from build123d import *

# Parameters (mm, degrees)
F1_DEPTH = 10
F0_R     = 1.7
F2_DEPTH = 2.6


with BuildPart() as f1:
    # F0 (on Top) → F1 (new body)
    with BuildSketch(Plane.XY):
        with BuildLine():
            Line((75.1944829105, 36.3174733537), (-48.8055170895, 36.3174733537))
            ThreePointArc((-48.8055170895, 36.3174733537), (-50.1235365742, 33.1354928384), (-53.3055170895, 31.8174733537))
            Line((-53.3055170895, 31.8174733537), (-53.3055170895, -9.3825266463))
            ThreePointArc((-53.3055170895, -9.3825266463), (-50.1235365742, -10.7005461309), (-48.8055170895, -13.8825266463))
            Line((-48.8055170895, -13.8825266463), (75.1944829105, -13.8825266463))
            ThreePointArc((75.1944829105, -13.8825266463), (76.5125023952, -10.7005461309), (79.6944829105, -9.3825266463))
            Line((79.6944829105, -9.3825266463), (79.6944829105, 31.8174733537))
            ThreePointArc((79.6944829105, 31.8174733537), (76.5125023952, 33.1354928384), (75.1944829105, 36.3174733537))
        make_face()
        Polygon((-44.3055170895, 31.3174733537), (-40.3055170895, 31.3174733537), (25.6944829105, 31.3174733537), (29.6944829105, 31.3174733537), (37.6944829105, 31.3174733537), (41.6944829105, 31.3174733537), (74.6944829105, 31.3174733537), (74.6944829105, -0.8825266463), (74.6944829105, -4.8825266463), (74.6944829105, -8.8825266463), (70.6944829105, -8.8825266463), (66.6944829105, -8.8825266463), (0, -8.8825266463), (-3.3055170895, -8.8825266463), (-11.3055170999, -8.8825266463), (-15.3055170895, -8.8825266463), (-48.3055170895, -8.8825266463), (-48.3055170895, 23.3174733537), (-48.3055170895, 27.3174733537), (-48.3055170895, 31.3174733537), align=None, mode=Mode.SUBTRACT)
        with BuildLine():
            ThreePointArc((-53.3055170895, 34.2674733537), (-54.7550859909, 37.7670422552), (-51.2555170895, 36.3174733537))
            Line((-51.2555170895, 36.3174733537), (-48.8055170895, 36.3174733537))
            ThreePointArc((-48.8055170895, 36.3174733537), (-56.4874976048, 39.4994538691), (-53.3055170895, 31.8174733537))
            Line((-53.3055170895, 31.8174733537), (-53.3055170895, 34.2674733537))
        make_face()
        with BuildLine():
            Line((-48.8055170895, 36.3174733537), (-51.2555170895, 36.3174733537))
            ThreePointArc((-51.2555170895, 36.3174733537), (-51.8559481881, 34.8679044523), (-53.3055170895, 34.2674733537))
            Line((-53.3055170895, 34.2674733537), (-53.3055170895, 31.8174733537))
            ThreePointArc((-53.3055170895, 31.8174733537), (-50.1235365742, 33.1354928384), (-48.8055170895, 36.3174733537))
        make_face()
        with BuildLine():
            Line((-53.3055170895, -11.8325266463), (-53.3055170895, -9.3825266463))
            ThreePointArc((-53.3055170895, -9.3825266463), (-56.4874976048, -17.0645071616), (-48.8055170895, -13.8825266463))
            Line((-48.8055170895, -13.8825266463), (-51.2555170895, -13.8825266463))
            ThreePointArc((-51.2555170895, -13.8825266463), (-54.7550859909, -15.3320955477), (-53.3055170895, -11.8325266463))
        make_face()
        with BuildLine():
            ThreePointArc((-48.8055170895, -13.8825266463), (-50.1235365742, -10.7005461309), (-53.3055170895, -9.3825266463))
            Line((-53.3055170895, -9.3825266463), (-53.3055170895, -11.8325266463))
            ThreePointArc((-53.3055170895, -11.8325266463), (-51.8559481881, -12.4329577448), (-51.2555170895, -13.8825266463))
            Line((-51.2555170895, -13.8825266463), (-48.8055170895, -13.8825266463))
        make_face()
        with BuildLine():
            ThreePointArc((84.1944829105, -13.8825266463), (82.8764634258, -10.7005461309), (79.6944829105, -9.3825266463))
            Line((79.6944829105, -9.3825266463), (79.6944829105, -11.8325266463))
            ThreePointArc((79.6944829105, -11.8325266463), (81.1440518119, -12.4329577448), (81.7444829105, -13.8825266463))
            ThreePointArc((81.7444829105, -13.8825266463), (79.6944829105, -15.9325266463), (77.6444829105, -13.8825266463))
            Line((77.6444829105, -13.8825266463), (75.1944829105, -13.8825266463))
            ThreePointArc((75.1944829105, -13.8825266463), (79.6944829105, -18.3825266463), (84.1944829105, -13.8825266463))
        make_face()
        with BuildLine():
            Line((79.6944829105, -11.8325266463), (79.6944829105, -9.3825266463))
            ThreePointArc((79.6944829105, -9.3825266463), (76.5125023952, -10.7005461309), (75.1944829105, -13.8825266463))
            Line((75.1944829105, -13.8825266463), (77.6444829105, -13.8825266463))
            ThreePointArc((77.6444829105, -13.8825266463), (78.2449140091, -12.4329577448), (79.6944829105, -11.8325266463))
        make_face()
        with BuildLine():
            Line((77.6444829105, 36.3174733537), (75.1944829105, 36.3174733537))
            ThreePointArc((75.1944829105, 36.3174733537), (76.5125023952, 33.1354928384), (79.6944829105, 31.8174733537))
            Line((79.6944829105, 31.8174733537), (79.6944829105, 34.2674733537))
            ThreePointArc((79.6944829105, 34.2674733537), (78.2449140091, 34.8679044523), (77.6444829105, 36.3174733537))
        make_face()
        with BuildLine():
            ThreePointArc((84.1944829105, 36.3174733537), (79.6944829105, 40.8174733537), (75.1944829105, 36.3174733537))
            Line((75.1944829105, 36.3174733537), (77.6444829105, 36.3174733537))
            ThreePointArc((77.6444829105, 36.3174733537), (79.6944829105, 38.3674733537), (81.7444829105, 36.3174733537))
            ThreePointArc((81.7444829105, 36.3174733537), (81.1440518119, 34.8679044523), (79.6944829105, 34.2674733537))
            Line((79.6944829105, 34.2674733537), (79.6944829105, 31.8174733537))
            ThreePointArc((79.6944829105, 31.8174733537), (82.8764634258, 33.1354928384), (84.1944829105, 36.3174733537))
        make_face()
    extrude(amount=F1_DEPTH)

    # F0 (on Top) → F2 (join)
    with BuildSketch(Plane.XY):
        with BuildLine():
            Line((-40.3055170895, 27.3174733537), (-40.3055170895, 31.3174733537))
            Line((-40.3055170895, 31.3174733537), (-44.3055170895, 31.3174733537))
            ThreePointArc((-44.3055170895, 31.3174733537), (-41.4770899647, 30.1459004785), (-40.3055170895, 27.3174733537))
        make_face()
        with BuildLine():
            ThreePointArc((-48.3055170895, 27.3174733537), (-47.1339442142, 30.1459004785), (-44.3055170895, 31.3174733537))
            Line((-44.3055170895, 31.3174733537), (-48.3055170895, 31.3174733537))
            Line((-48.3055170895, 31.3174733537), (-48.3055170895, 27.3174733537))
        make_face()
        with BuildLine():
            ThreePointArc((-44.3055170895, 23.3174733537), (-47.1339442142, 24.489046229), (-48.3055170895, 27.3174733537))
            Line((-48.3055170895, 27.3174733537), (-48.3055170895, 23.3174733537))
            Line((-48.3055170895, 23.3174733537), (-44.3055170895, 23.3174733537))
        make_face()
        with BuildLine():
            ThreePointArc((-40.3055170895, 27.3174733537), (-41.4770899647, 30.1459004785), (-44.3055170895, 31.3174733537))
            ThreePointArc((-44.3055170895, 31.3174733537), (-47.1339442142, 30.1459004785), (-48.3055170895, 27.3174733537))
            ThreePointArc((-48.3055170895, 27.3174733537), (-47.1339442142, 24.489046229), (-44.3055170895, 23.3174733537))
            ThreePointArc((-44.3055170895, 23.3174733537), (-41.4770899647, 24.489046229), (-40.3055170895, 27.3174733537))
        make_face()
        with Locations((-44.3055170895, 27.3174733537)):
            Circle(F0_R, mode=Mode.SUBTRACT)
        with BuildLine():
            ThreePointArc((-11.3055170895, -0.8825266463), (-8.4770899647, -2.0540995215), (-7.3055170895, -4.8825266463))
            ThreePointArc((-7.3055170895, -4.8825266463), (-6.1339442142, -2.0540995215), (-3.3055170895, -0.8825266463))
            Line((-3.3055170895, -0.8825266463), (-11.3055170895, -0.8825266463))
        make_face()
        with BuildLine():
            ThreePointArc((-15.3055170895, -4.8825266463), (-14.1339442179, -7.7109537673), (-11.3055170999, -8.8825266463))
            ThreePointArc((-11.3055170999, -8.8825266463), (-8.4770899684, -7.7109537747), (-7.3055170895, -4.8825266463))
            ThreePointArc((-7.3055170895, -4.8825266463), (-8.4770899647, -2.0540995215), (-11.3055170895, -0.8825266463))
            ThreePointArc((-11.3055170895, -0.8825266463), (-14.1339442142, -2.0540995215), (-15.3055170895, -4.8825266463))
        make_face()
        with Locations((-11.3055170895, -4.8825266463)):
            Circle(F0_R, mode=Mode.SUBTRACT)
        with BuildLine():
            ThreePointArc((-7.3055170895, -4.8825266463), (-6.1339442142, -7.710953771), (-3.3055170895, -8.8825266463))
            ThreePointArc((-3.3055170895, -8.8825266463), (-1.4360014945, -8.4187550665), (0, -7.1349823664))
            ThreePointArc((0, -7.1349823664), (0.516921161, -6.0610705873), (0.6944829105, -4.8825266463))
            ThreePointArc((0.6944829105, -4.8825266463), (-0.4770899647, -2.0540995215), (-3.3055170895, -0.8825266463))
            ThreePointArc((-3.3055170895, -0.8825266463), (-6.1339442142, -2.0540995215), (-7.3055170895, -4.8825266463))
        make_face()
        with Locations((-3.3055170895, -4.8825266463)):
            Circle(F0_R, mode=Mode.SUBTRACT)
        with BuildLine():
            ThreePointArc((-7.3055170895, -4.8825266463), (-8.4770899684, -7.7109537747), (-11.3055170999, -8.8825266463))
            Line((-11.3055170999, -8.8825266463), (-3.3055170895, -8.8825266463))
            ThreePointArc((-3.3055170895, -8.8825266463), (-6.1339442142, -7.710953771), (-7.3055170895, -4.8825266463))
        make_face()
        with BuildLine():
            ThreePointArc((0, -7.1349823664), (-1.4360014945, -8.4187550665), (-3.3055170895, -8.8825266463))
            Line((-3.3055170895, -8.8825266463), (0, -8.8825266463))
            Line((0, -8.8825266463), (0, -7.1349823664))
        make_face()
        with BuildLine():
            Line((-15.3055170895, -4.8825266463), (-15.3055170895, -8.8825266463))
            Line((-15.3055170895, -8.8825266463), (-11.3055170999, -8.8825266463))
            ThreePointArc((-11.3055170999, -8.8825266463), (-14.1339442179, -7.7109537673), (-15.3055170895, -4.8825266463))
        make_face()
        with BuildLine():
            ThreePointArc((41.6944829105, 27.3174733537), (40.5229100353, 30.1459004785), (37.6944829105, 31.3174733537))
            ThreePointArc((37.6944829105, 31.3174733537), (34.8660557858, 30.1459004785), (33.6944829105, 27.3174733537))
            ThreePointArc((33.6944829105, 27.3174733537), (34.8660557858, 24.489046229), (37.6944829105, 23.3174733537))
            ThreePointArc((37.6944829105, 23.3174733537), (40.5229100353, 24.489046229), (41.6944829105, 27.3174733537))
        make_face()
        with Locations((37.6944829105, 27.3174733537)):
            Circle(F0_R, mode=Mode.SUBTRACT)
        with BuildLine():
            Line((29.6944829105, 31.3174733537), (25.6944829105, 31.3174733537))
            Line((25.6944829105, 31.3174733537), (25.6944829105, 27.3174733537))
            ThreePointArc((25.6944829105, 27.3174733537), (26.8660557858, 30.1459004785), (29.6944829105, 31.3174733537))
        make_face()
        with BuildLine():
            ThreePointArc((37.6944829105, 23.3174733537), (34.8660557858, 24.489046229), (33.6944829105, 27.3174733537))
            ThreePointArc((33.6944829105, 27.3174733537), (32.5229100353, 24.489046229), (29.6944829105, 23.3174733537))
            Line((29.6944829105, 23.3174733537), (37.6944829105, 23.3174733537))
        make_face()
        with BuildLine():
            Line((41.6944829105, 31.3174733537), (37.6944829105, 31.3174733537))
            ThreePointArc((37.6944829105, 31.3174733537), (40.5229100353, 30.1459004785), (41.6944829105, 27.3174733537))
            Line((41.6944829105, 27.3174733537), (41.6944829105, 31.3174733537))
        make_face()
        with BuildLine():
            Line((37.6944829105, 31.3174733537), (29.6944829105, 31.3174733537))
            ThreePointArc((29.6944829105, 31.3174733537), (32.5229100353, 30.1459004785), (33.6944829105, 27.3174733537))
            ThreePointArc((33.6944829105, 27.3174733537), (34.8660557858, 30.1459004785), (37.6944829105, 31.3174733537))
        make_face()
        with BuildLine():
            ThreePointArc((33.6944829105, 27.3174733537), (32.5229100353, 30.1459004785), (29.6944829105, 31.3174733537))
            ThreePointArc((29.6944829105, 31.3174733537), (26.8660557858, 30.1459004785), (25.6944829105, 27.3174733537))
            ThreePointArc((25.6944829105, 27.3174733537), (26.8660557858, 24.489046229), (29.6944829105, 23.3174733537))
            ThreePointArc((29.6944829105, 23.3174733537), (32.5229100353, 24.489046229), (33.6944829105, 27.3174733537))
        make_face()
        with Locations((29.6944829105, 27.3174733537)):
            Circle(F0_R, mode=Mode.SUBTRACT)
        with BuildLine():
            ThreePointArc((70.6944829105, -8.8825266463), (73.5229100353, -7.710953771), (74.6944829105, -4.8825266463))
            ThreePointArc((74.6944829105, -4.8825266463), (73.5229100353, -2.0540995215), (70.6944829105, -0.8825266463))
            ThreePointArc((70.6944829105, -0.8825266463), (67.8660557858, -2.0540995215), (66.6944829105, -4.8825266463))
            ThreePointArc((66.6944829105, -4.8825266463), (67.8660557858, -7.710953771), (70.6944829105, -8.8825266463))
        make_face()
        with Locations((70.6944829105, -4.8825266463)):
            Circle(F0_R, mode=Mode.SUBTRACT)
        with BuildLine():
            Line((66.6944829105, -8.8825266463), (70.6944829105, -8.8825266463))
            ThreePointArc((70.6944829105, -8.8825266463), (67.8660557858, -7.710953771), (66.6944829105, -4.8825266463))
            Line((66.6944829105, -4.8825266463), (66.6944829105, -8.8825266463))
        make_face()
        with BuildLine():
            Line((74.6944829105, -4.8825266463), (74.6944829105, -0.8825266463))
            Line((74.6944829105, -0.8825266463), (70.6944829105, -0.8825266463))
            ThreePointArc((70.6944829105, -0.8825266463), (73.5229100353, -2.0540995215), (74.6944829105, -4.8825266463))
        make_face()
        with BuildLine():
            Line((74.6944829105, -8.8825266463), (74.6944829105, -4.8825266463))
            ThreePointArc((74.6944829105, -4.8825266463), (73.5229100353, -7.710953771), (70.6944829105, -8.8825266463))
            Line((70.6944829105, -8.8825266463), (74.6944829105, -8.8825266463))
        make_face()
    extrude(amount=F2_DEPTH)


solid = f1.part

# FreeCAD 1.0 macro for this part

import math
import FreeCAD as App
import Part
import Sketcher

V = App.Vector
Q = App.Units.Quantity

doc = App.newDocument("Part")
body = doc.addObject("PartDesign::Body", "Body")

# Sketch on XY plane
sketch1 = body.newObject("Sketcher::SketchObject", "Sketch")
sketch1.AttachmentSupport = (doc.getObject("XY_Plane"), [""])
sketch1.MapMode = "FlatFace"
sketch1.addGeometry([
    Part.ArcOfCircle(Part.Circle(V(-53.305517, 36.317473, 0), V(0, 0, 1), 4.5), math.radians(0), math.radians(270)),  # 0
    Part.LineSegment(V(-53.305517, 31.817473, 0), V(-53.305517, -9.382527, 0)),  # 1
    Part.ArcOfCircle(Part.Circle(V(-53.305517, -13.882527, 0), V(0, 0, 1), 4.5), math.radians(90), math.radians(360)),  # 2
    Part.LineSegment(V(-48.805517, -13.882527, 0), V(75.194483, -13.882527, 0)),  # 3
    Part.ArcOfCircle(Part.Circle(V(79.694483, -13.882527, 0), V(0, 0, 1), 4.5), math.radians(180), math.radians(360)),  # 4
    Part.ArcOfCircle(Part.Circle(V(79.694483, -13.882527, 0), V(0, 0, 1), 4.5), math.radians(0), math.radians(90)),  # 5
    Part.LineSegment(V(79.694483, -9.382527, 0), V(79.694483, 31.817473, 0)),  # 6
    Part.ArcOfCircle(Part.Circle(V(79.694483, 36.317473, 0), V(0, 0, 1), 4.5), math.radians(-90), math.radians(0)),  # 7
    Part.ArcOfCircle(Part.Circle(V(79.694483, 36.317473, 0), V(0, 0, 1), 4.5), math.radians(0), math.radians(180)),  # 8
    Part.LineSegment(V(75.194483, 36.317473, 0), V(-48.805517, 36.317473, 0)),  # 9
    Part.ArcOfCircle(Part.Circle(V(79.694483, 36.317473, 0), V(0, 0, 1), 2.05), math.radians(180), math.radians(270)),  # 10
    Part.ArcOfCircle(Part.Circle(V(79.694483, 36.317473, 0), V(0, 0, 1), 2.05), math.radians(0), math.radians(180)),  # 11
    Part.ArcOfCircle(Part.Circle(V(79.694483, 36.317473, 0), V(0, 0, 1), 2.05), math.radians(-90), math.radians(0)),  # 12
    Part.LineSegment(V(-48.305517, 31.317473, 0), V(74.694483, 31.317473, 0)),  # 13
    Part.LineSegment(V(74.694483, 31.317473, 0), V(74.694483, -8.882527, 0)),  # 14
    Part.LineSegment(V(74.694483, -8.882527, 0), V(-48.305517, -8.882527, 0)),  # 15
    Part.LineSegment(V(-48.305517, -8.882527, 0), V(-48.305517, 31.317473, 0)),  # 16
    Part.ArcOfCircle(Part.Circle(V(-53.305517, 36.317473, 0), V(0, 0, 1), 2.05), math.radians(-90), math.radians(0)),  # 17
    Part.ArcOfCircle(Part.Circle(V(-53.305517, 36.317473, 0), V(0, 0, 1), 2.05), math.radians(0), math.radians(270)),  # 18
    Part.ArcOfCircle(Part.Circle(V(-53.305517, -13.882527, 0), V(0, 0, 1), 2.05), math.radians(0), math.radians(90)),  # 19
    Part.ArcOfCircle(Part.Circle(V(-53.305517, -13.882527, 0), V(0, 0, 1), 2.05), math.radians(90), math.radians(360)),  # 20
    Part.ArcOfCircle(Part.Circle(V(79.694483, -13.882527, 0), V(0, 0, 1), 2.05), math.radians(90), math.radians(180)),  # 21
    Part.ArcOfCircle(Part.Circle(V(79.694483, -13.882527, 0), V(0, 0, 1), 2.05), math.radians(0), math.radians(90)),  # 22
    Part.ArcOfCircle(Part.Circle(V(79.694483, -13.882527, 0), V(0, 0, 1), 2.05), math.radians(180), math.radians(360)),  # 23
], False)
sketch1.addConstraint([
    Sketcher.Constraint("Coincident", 0, 2, 1, 1),
    Sketcher.Constraint("Coincident", 1, 2, 2, 1),
    Sketcher.Constraint("Coincident", 2, 2, 3, 1),
    Sketcher.Constraint("Coincident", 3, 2, 4, 1),
    Sketcher.Constraint("Tangent", 4, 2, 5, 1),
    Sketcher.Constraint("Coincident", 5, 2, 6, 1),
    Sketcher.Constraint("Coincident", 6, 2, 7, 1),
    Sketcher.Constraint("Tangent", 7, 2, 8, 1),
    Sketcher.Constraint("Coincident", 8, 2, 9, 1),
    Sketcher.Constraint("Coincident", 9, 2, 0, 1),
    Sketcher.Constraint("Tangent", 10, 1, 11, 2),
    Sketcher.Constraint("Tangent", 11, 1, 12, 2),
    Sketcher.Constraint("Tangent", 12, 1, 10, 2),
    Sketcher.Constraint("Coincident", 13, 2, 14, 1),
    Sketcher.Constraint("Coincident", 14, 2, 15, 1),
    Sketcher.Constraint("Coincident", 15, 2, 16, 1),
    Sketcher.Constraint("Coincident", 16, 2, 13, 1),
    Sketcher.Constraint("Tangent", 17, 1, 18, 2),
    Sketcher.Constraint("Coincident", 18, 1, 17, 2),
    Sketcher.Constraint("Tangent", 19, 1, 20, 2),
    Sketcher.Constraint("Coincident", 20, 1, 19, 2),
    Sketcher.Constraint("Tangent", 21, 1, 22, 2),
    Sketcher.Constraint("Tangent", 22, 1, 23, 2),
    Sketcher.Constraint("Tangent", 23, 1, 21, 2),
    Sketcher.Constraint("Vertical", 1),
    Sketcher.Constraint("Horizontal", 3),
    Sketcher.Constraint("Vertical", 6),
    Sketcher.Constraint("Horizontal", 9),
    Sketcher.Constraint("Horizontal", 13),
    Sketcher.Constraint("Vertical", 14),
    Sketcher.Constraint("Horizontal", 15),
    Sketcher.Constraint("Vertical", 16),
    Sketcher.Constraint("Coincident", 10, 3, 7, 3),
    Sketcher.Constraint("Coincident", 17, 3, 0, 3),
    Sketcher.Constraint("Coincident", 19, 3, 2, 3),
    Sketcher.Constraint("Coincident", 21, 3, 4, 3),
    Sketcher.Constraint("Equal", 0, 2),
    Sketcher.Constraint("Equal", 2, 4),
    Sketcher.Constraint("Equal", 4, 5),
    Sketcher.Constraint("Equal", 5, 7),
    Sketcher.Constraint("Equal", 7, 8),
    Sketcher.Constraint("Equal", 12, 17),
    Sketcher.Constraint("Equal", 18, 19),
    Sketcher.Constraint("Equal", 20, 21),
    Sketcher.Constraint("Horizontal", 2, 3, 4, 3),
    Sketcher.Constraint("Horizontal", 0, 3, 7, 3),
    Sketcher.Constraint("Horizontal", 23, 3, 2, 2),
    Sketcher.Constraint("Horizontal", 3, 2, 4, 2),
    Sketcher.Constraint("Horizontal", 18, 3, 7, 2),
    Sketcher.Constraint("Horizontal", 7, 2, 8, 2),
    Sketcher.Constraint("Horizontal", 9, 2, 10, 1),
    Sketcher.Constraint("Horizontal", 10, 1, 11, 1),
    Sketcher.Constraint("Horizontal", 11, 1, 18, 1),
    Sketcher.Constraint("Horizontal", 4, 2, 19, 1),
    Sketcher.Constraint("Horizontal", 19, 1, 22, 1),
    Sketcher.Constraint("Horizontal", 22, 1, 23, 1),
    Sketcher.Constraint("Vertical", 0, 3, 2, 3),
    Sketcher.Constraint("Vertical", 5, 3, 7, 3),
    Sketcher.Constraint("Vertical", 20, 3, 0, 2),
    Sketcher.Constraint("Vertical", 23, 3, 5, 2),
    Sketcher.Constraint("Vertical", 6, 2, 12, 1),
    Sketcher.Constraint("Vertical", 1, 2, 17, 1),
    Sketcher.Constraint("Vertical", 17, 1, 20, 1),
    Sketcher.Constraint("Vertical", 12, 1, 21, 1),
    Sketcher.Constraint("Radius", 0, Q("4.5 mm")),
    Sketcher.Constraint("DistanceX", 3, 1, 3, 2, Q("124 mm")),
    Sketcher.Constraint("DistanceX", 13, 1, 13, 2, Q("123 mm")),
    Sketcher.Constraint("Radius", 10, Q("2.05 mm")),
    Sketcher.Constraint("DistanceY", 1, 2, 1, 1, Q("41.2 mm")),
    Sketcher.Constraint("DistanceY", 14, 2, 14, 1, Q("40.2 mm")),
    Sketcher.Constraint("DistanceX", 13, 2, 6, 2, Q("5 mm")),
    Sketcher.Constraint("DistanceY", 13, 2, 8, 2, Q("5 mm")),
    Sketcher.Constraint("DistanceX", 0, 3, -1, 1, Q("53.305517 mm")),
    Sketcher.Constraint("DistanceY", -1, 1, 0, 3, Q("36.317473 mm")),
])
pad1 = body.newObject("PartDesign::Pad", "Pad")
pad1.Profile = sketch1
pad1.Length = 10

# Sketch on XY plane
sketch2 = body.newObject("Sketcher::SketchObject", "Sketch001")
sketch2.AttachmentSupport = (doc.getObject("XY_Plane"), [""])
sketch2.MapMode = "FlatFace"
sketch2.addGeometry([
    Part.LineSegment(V(-40.305517, 27.317473, 0), V(-40.305517, 31.317473, 0)),  # 0
    Part.LineSegment(V(-40.305517, 31.317473, 0), V(-48.305517, 31.317473, 0)),  # 1
    Part.LineSegment(V(-48.305517, 31.317473, 0), V(-48.305517, 23.317473, 0)),  # 2
    Part.LineSegment(V(-48.305517, 23.317473, 0), V(-44.305517, 23.317473, 0)),  # 3
    Part.ArcOfCircle(Part.Circle(V(-44.305517, 27.317473, 0), V(0, 0, 1), 4), math.radians(-90), math.radians(0)),  # 4
    Part.Circle(V(-44.305517, 27.317473, 0), V(0, 0, 1), 1.7),  # 5
    Part.LineSegment(V(0, -8.882527, 0), V(0, -7.134982, 0)),  # 6
    Part.ArcOfCircle(Part.Circle(V(-3.305517, -4.882527, 0), V(0, 0, 1), 4), math.radians(-34.271421), math.radians(0)),  # 7
    Part.ArcOfCircle(Part.Circle(V(-3.305517, -4.882527, 0), V(0, 0, 1), 4), math.radians(0), math.radians(90)),  # 8
    Part.LineSegment(V(-3.305517, -0.882527, 0), V(-11.305517, -0.882527, 0)),  # 9
    Part.ArcOfCircle(Part.Circle(V(-11.305517, -4.882527, 0), V(0, 0, 1), 4), math.radians(90), math.radians(180)),  # 10
    Part.LineSegment(V(-15.305517, -4.882527, 0), V(-15.305517, -8.882527, 0)),  # 11
    Part.LineSegment(V(-15.305517, -8.882527, 0), V(0, -8.882527, 0)),  # 12
    Part.Circle(V(-11.305517, -4.882527, 0), V(0, 0, 1), 1.7),  # 13
    Part.Circle(V(-3.305517, -4.882527, 0), V(0, 0, 1), 1.7),  # 14
    Part.LineSegment(V(41.694483, 31.317473, 0), V(25.694483, 31.317473, 0)),  # 15
    Part.LineSegment(V(25.694483, 31.317473, 0), V(25.694483, 27.317473, 0)),  # 16
    Part.ArcOfCircle(Part.Circle(V(29.694483, 27.317473, 0), V(0, 0, 1), 4), math.radians(180), math.radians(270)),  # 17
    Part.LineSegment(V(29.694483, 23.317473, 0), V(37.694483, 23.317473, 0)),  # 18
    Part.ArcOfCircle(Part.Circle(V(37.694483, 27.317473, 0), V(0, 0, 1), 4), math.radians(-90), math.radians(0)),  # 19
    Part.LineSegment(V(41.694483, 27.317473, 0), V(41.694483, 31.317473, 0)),  # 20
    Part.Circle(V(29.694483, 27.317473, 0), V(0, 0, 1), 1.7),  # 21
    Part.Circle(V(37.694483, 27.317473, 0), V(0, 0, 1), 1.7),  # 22
    Part.LineSegment(V(74.694483, -0.882527, 0), V(70.694483, -0.882527, 0)),  # 23
    Part.ArcOfCircle(Part.Circle(V(70.694483, -4.882527, 0), V(0, 0, 1), 4), math.radians(90), math.radians(180)),  # 24
    Part.LineSegment(V(66.694483, -4.882527, 0), V(66.694483, -8.882527, 0)),  # 25
    Part.LineSegment(V(66.694483, -8.882527, 0), V(74.694483, -8.882527, 0)),  # 26
    Part.LineSegment(V(74.694483, -8.882527, 0), V(74.694483, -0.882527, 0)),  # 27
    Part.Circle(V(70.694483, -4.882527, 0), V(0, 0, 1), 1.7),  # 28
], False)
sketch2.addConstraint([
    Sketcher.Constraint("Coincident", 0, 2, 1, 1),
    Sketcher.Constraint("Coincident", 1, 2, 2, 1),
    Sketcher.Constraint("Coincident", 2, 2, 3, 1),
    Sketcher.Constraint("Tangent", 3, 2, 4, 1),
    Sketcher.Constraint("Tangent", 4, 2, 0, 1),
    Sketcher.Constraint("Coincident", 6, 2, 7, 1),
    Sketcher.Constraint("Tangent", 7, 2, 8, 1),
    Sketcher.Constraint("Tangent", 8, 2, 9, 1),
    Sketcher.Constraint("Tangent", 9, 2, 10, 1),
    Sketcher.Constraint("Tangent", 10, 2, 11, 1),
    Sketcher.Constraint("Coincident", 11, 2, 12, 1),
    Sketcher.Constraint("Coincident", 12, 2, 6, 1),
    Sketcher.Constraint("Coincident", 15, 2, 16, 1),
    Sketcher.Constraint("Tangent", 16, 2, 17, 1),
    Sketcher.Constraint("Tangent", 17, 2, 18, 1),
    Sketcher.Constraint("Tangent", 18, 2, 19, 1),
    Sketcher.Constraint("Tangent", 19, 2, 20, 1),
    Sketcher.Constraint("Coincident", 20, 2, 15, 1),
    Sketcher.Constraint("Tangent", 23, 2, 24, 1),
    Sketcher.Constraint("Tangent", 24, 2, 25, 1),
    Sketcher.Constraint("Coincident", 25, 2, 26, 1),
    Sketcher.Constraint("Coincident", 26, 2, 27, 1),
    Sketcher.Constraint("Coincident", 27, 2, 23, 1),
    Sketcher.Constraint("Vertical", 0),
    Sketcher.Constraint("Horizontal", 1),
    Sketcher.Constraint("Vertical", 2),
    Sketcher.Constraint("Horizontal", 3),
    Sketcher.Constraint("Vertical", 6),
    Sketcher.Constraint("Horizontal", 9),
    Sketcher.Constraint("Vertical", 11),
    Sketcher.Constraint("Horizontal", 12),
    Sketcher.Constraint("Horizontal", 15),
    Sketcher.Constraint("Vertical", 16),
    Sketcher.Constraint("Horizontal", 18),
    Sketcher.Constraint("Vertical", 20),
    Sketcher.Constraint("Horizontal", 23),
    Sketcher.Constraint("Vertical", 25),
    Sketcher.Constraint("Horizontal", 26),
    Sketcher.Constraint("Vertical", 27),
    Sketcher.Constraint("Coincident", 5, 3, 4, 3),
    Sketcher.Constraint("Coincident", 13, 3, 10, 3),
    Sketcher.Constraint("Coincident", 14, 3, 7, 3),
    Sketcher.Constraint("Coincident", 21, 3, 17, 3),
    Sketcher.Constraint("Coincident", 22, 3, 19, 3),
    Sketcher.Constraint("Coincident", 28, 3, 24, 3),
    Sketcher.Constraint("Equal", 4, 7),
    Sketcher.Constraint("Equal", 7, 8),
    Sketcher.Constraint("Equal", 8, 10),
    Sketcher.Constraint("Equal", 5, 13),
    Sketcher.Constraint("Equal", 13, 14),
    Sketcher.Constraint("Equal", 10, 17),
    Sketcher.Constraint("Equal", 17, 19),
    Sketcher.Constraint("Equal", 14, 21),
    Sketcher.Constraint("Equal", 21, 22),
    Sketcher.Constraint("Equal", 19, 24),
    Sketcher.Constraint("Equal", 22, 28),
    Sketcher.Constraint("PointOnObject", 6, 2, -2),
    Sketcher.Constraint("Horizontal", 5, 3, 17, 3),
    Sketcher.Constraint("Horizontal", 14, 3, 24, 3),
    Sketcher.Constraint("Horizontal", 28, 3, 7, 2),
    Sketcher.Constraint("Horizontal", 1, 2, 15, 2),
    Sketcher.Constraint("Horizontal", 12, 2, 25, 2),
    Sketcher.Constraint("Equal", 1, 9),
    Sketcher.Constraint("Equal", 9, 18),
    Sketcher.Constraint("Equal", 3, 23),
    Sketcher.Constraint("Equal", 23, 0),
    Sketcher.Constraint("Equal", 0, 11),
    Sketcher.Constraint("Radius", 4, Q("4 mm")),
    Sketcher.Constraint("Diameter", 5, Q("3.4 mm")),
    Sketcher.Constraint("DistanceX", 1, 2, 1, 1, Q("8 mm")),
    Sketcher.Constraint("DistanceX", 4, 3, 7, 3, Q("41 mm")),
    Sketcher.Constraint("DistanceX", 8, 3, 17, 3, Q("33 mm")),
    Sketcher.Constraint("DistanceX", 19, 3, 24, 3, Q("33 mm")),
    Sketcher.Constraint("DistanceY", 7, 3, 4, 3, Q("32.2 mm")),
    Sketcher.Constraint("DistanceX", 12, 1, 12, 2, Q("15.305517 mm")),
    Sketcher.Constraint("DistanceY", -1, 1, 4, 3, Q("27.317473 mm")),
])
pad2 = body.newObject("PartDesign::Pad", "Pad001")
pad2.Profile = sketch2
pad2.Length = 2.6

doc.recompute()
